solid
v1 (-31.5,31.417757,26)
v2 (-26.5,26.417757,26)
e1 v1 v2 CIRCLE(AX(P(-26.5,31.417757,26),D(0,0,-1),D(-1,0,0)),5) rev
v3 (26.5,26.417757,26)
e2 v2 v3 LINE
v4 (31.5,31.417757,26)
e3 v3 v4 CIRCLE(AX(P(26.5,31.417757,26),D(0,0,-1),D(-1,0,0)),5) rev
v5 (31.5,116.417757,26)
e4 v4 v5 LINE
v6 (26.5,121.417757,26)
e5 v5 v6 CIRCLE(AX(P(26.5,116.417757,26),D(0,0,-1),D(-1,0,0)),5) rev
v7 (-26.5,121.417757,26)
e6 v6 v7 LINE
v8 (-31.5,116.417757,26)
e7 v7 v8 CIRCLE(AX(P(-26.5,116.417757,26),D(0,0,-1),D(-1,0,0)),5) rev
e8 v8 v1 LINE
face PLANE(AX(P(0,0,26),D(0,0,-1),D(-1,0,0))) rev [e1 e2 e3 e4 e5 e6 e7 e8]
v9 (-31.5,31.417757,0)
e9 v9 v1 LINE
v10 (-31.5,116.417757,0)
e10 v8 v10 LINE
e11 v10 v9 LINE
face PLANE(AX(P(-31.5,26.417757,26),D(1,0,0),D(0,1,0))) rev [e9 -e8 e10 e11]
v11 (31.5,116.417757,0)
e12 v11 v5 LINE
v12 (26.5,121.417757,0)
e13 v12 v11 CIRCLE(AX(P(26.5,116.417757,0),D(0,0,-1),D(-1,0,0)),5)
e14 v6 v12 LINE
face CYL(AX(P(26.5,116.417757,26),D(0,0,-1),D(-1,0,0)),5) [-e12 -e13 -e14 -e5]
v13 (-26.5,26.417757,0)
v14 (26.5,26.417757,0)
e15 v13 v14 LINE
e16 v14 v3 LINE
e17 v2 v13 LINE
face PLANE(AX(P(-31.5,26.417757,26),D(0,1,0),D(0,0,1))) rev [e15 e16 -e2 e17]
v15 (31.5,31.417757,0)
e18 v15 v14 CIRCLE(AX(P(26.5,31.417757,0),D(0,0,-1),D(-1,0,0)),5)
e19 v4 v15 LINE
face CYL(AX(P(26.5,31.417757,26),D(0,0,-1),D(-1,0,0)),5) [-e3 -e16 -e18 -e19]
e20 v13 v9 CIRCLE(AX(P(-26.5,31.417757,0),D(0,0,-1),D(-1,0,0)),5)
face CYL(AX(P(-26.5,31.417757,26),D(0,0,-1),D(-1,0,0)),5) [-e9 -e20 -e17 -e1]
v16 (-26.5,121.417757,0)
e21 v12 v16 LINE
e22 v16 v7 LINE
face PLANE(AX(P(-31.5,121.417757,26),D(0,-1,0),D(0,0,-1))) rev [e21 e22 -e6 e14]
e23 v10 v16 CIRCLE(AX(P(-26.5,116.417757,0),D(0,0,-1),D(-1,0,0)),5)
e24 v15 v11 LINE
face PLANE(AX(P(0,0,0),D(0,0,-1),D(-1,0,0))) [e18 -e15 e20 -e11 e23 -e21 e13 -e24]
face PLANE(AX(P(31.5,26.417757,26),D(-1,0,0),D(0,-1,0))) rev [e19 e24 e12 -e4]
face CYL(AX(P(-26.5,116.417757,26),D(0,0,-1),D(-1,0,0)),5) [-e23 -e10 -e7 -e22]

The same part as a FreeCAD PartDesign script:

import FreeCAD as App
import Part
import Sketcher


def edges_at(feature, points):
    """Names of the edges that pass closest to the given points."""
    edges = feature.Shape.Edges
    near = lambda p: min(range(len(edges)), key=lambda i: edges[i].distToShape(Part.Vertex(*p))[0])
    return sorted({f"Edge{near(p) + 1}" for p in points})

doc = App.newDocument("Part")
body = doc.addObject("PartDesign::Body", "Body")

sketch1 = body.newObject("Sketcher::SketchObject", "Sketch")
sketch1.AttachmentSupport = (doc.getObject("XY_Plane"), [""])
sketch1.MapMode = "FlatFace"
sketch1.addGeometry(Part.LineSegment(App.Vector(-31.5, 121.417757, 0), App.Vector(-31.5, 26.417757, 0)), False)
sketch1.addGeometry(Part.LineSegment(App.Vector(-31.5, 26.417757, 0), App.Vector(31.5, 26.417757, 0)), False)
sketch1.addGeometry(Part.LineSegment(App.Vector(31.5, 26.417757, 0), App.Vector(31.5, 121.417757, 0)), False)
sketch1.addGeometry(Part.LineSegment(App.Vector(31.5, 121.417757, 0), App.Vector(-31.5, 121.417757, 0)), False)
sketch1.addConstraint(Sketcher.Constraint("Coincident", 0, 2, 1, 1))
sketch1.addConstraint(Sketcher.Constraint("Coincident", 1, 2, 2, 1))
sketch1.addConstraint(Sketcher.Constraint("Coincident", 2, 2, 3, 1))
sketch1.addConstraint(Sketcher.Constraint("Coincident", 3, 2, 0, 1))
sketch1.addConstraint(Sketcher.Constraint("Vertical", 0))
sketch1.addConstraint(Sketcher.Constraint("Horizontal", 1))
sketch1.addConstraint(Sketcher.Constraint("Vertical", 2))
sketch1.addConstraint(Sketcher.Constraint("Horizontal", 3))
sketch1.addConstraint(Sketcher.Constraint("DistanceX", 1, 1, 1, 2, 63.0))
sketch1.addConstraint(Sketcher.Constraint("DistanceY", 0, 2, 0, 1, 95.0))
sketch1.addConstraint(Sketcher.Constraint("DistanceX", 0, 2, -1, 1, 31.5))
sketch1.addConstraint(Sketcher.Constraint("DistanceY", -1, 1, 0, 2, 26.417757))
pad1 = body.newObject("PartDesign::Pad", "Pad")
pad1.Profile = sketch1
pad1.Length = 26
doc.recompute()

fillet = body.newObject("PartDesign::Fillet", "Fillet")
fillet.Base = (pad1, edges_at(pad1, [
    (31.5, 26.418, 13),
    (-31.5, 26.418, 13),
    (-31.5, 121.418, 13),
    (31.5, 121.418, 13),
]))
fillet.Radius = 5

doc.recompute()
